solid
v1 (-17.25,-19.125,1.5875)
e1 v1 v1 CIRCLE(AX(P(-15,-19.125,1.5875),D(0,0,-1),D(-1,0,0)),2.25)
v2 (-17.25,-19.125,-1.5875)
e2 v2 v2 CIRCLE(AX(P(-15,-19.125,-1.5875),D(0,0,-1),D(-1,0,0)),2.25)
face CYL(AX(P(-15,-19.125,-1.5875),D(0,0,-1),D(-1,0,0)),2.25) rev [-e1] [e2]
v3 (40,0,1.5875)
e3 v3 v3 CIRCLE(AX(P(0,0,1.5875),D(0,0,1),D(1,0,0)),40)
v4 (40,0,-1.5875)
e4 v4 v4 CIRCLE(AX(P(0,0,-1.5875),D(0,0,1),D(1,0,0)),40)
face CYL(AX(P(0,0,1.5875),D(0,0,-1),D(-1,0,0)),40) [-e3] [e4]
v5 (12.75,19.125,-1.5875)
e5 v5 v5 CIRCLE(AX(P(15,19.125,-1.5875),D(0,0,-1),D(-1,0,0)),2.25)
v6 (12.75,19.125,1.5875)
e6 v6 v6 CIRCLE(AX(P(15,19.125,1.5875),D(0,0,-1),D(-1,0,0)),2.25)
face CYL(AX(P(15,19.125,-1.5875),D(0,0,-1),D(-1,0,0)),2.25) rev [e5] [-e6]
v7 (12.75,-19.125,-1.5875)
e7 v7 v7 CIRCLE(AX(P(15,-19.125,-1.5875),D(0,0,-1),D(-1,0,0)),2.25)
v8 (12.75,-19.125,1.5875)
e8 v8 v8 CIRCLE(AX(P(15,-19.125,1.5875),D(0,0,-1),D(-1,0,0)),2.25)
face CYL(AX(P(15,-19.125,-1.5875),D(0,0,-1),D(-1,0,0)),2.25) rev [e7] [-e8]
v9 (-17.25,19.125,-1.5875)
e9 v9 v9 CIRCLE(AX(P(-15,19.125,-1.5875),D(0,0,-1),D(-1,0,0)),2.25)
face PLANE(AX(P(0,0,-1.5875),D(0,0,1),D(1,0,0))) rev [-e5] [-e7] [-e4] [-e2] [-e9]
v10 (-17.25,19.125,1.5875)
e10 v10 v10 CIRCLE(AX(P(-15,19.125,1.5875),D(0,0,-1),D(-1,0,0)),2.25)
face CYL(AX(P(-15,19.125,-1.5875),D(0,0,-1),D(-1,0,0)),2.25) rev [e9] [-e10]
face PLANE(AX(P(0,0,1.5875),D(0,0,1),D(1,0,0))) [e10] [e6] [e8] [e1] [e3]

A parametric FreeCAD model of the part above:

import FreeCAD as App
import Part
import Sketcher
from FreeCAD import Vector

doc = App.newDocument("Part")
body = doc.addObject("PartDesign::Body", "Body")

# Sketch on XY plane
sketch1 = body.newObject("Sketcher::SketchObject", "Sketch")
sketch1.AttachmentSupport = (doc.getObject("XY_Plane"), [""])
sketch1.MapMode = "FlatFace"
sketch1.addGeometry(Part.Circle(Vector(0, 0, 0), Vector(0, 0, 1), 40), False)
sketch1.addConstraint([
    Sketcher.Constraint("Coincident", 0, 3, -1, 1),
    Sketcher.Constraint("Diameter", 0, 80.0),
])
pad1 = body.newObject("PartDesign::Pad", "Pad")
pad1.Profile = sketch1
pad1.Length = 3.175
pad1.Midplane = True

# Sketch on XY plane
sketch2 = body.newObject("Sketcher::SketchObject", "Sketch001")
sketch2.AttachmentSupport = (doc.getObject("XY_Plane"), [""])
sketch2.MapMode = "FlatFace"
sketch2.AttachmentOffset = App.Placement(Vector(0, 0, -1.5875), App.Rotation())
sketch2.addGeometry([
    Part.Circle(Vector(-15, 19.125, 0), Vector(0, 0, 1), 2.25),
    Part.Circle(Vector(15, 19.125, 0), Vector(0, 0, 1), 2.25),
    Part.Circle(Vector(15, -19.125, 0), Vector(0, 0, 1), 2.25),
    Part.Circle(Vector(-15, -19.125, 0), Vector(0, 0, 1), 2.25),
], False)
sketch2.addConstraint([
    Sketcher.Constraint("Equal", 0, 1),
    Sketcher.Constraint("Equal", 1, 2),
    Sketcher.Constraint("Equal", 2, 3),
    Sketcher.Constraint("Symmetric", 0, 3, 2, 3, -1, 1),
    Sketcher.Constraint("Symmetric", 1, 3, 3, 3, -1, 1),
    Sketcher.Constraint("Symmetric", 0, 3, 1, 3, -2),
    Sketcher.Constraint("Diameter", 0, 4.5),
    Sketcher.Constraint("DistanceX", 0, 3, -1, 1, 15.0),
    Sketcher.Constraint("DistanceY", 2, 3, 1, 3, 38.25),
])
doc.recompute()
hole = body.newObject("PartDesign::Hole", "Hole")
hole.Profile = sketch2
hole.ThreadType = "None"
hole.Diameter = 4.5
hole.DepthType = "ThroughAll"
hole.Reversed = True

doc.recompute()
